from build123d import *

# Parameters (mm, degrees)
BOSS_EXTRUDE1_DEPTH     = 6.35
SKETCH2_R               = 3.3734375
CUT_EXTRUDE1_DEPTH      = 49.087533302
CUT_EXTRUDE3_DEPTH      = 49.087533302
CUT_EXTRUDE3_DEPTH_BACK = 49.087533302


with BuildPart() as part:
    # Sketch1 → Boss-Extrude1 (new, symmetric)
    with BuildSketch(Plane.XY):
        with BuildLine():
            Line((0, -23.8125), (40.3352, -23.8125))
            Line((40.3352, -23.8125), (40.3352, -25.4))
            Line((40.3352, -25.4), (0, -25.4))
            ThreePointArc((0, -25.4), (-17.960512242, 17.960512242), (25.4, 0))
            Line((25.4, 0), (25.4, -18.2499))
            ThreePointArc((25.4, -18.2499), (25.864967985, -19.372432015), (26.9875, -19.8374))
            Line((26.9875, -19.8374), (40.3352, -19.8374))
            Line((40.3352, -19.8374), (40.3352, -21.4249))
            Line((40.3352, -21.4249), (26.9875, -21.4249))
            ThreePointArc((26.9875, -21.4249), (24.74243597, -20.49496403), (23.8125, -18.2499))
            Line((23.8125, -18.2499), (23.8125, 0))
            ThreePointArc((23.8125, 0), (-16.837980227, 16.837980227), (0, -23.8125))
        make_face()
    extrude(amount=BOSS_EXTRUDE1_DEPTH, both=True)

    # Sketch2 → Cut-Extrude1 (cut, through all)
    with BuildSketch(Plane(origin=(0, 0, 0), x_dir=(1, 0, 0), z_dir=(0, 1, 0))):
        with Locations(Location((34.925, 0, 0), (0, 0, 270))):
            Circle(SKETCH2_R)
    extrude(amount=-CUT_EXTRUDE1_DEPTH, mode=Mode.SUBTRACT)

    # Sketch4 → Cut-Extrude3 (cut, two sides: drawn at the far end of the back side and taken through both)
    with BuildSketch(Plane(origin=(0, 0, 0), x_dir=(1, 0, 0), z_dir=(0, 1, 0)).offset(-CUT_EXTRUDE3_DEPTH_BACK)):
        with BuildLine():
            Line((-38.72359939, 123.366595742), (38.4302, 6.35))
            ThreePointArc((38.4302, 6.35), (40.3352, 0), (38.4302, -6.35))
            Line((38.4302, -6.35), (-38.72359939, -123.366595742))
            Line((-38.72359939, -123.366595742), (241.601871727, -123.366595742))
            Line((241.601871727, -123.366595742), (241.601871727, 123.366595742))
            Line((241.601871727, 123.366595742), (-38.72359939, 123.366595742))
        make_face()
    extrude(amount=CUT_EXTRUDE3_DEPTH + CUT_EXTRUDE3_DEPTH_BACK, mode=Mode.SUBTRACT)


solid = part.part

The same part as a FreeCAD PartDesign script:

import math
import FreeCAD as App
import Part
import Sketcher
Q = App.Units.Quantity

doc = App.newDocument("Part")
body = doc.addObject("PartDesign::Body", "Body")

sketch1 = body.newObject("Sketcher::SketchObject", "Sketch")
sketch1.AttachmentSupport = (doc.getObject("XY_Plane"), [""])
sketch1.MapMode = "FlatFace"
sketch1.addGeometry([
    Part.LineSegment(App.Vector(40.3, -23.8, 0), App.Vector(0, -23.8, 0)),
    Part.ArcOfCircle(Part.Circle(App.Vector(0, 0, 0), App.Vector(0, 0, 1), 23.8), math.radians(0), math.radians(270)),
    Part.LineSegment(App.Vector(23.8, 0, 0), App.Vector(23.8, -18.2, 0)),
    Part.ArcOfCircle(Part.Circle(App.Vector(27, -18.2, 0), App.Vector(0, 0, 1), 3.2), math.radians(-180), math.radians(-90)),
    Part.LineSegment(App.Vector(27, -21.4, 0), App.Vector(40.3, -21.4, 0)),
    Part.LineSegment(App.Vector(40.3, -21.4, 0), App.Vector(40.3, -19.8, 0)),
    Part.LineSegment(App.Vector(40.3, -19.8, 0), App.Vector(27, -19.8, 0)),
    Part.ArcOfCircle(Part.Circle(App.Vector(27, -18.2, 0), App.Vector(0, 0, 1), 1.6), math.radians(180), math.radians(270)),
    Part.LineSegment(App.Vector(25.4, -18.2, 0), App.Vector(25.4, 0, 0)),
    Part.ArcOfCircle(Part.Circle(App.Vector(0, 0, 0), App.Vector(0, 0, 1), 25.4), math.radians(0), math.radians(270)),
    Part.LineSegment(App.Vector(0, -25.4, 0), App.Vector(40.3, -25.4, 0)),
    Part.LineSegment(App.Vector(40.3, -25.4, 0), App.Vector(40.3, -23.8, 0)),
], False)
sketch1.addConstraint([
    Sketcher.Constraint("Tangent", 0, 2, 1, 2),
    Sketcher.Constraint("Tangent", 1, 1, 2, 1),
    Sketcher.Constraint("Tangent", 2, 2, 3, 1),
    Sketcher.Constraint("Tangent", 3, 2, 4, 1),
    Sketcher.Constraint("Coincident", 4, 2, 5, 1),
    Sketcher.Constraint("Coincident", 5, 2, 6, 1),
    Sketcher.Constraint("Tangent", 6, 2, 7, 2),
    Sketcher.Constraint("Tangent", 7, 1, 8, 1),
    Sketcher.Constraint("Tangent", 8, 2, 9, 1),
    Sketcher.Constraint("Tangent", 9, 2, 10, 1),
    Sketcher.Constraint("Coincident", 10, 2, 11, 1),
    Sketcher.Constraint("Coincident", 11, 2, 0, 1),
    Sketcher.Constraint("Horizontal", 0),
    Sketcher.Constraint("Vertical", 2),
    Sketcher.Constraint("Horizontal", 4),
    Sketcher.Constraint("Vertical", 5),
    Sketcher.Constraint("Horizontal", 6),
    Sketcher.Constraint("Vertical", 8),
    Sketcher.Constraint("Horizontal", 10),
    Sketcher.Constraint("Vertical", 11),
    Sketcher.Constraint("Coincident", 1, 3, -1, 1),
    Sketcher.Constraint("Coincident", 9, 3, -1, 1),
    Sketcher.Constraint("Coincident", 7, 3, 3, 3),
    Sketcher.Constraint("Vertical", 5, 2, 10, 2),
    Sketcher.Constraint("Radius", 9, Q("1 in")),
    Sketcher.Constraint("Radius", 1, Q("0.9375 in")),
    Sketcher.Constraint("Radius", 3, Q("0.125 in")),
    Sketcher.Constraint("DistanceX", 0, 2, 0, 1, Q("1.588 in")),
    Sketcher.Constraint("DistanceY", 2, 2, 2, 1, Q("0.7185 in")),
])
pad1 = body.newObject("PartDesign::Pad", "Pad")
pad1.Profile = sketch1
pad1.Length = Q("0.5 in")
pad1.Midplane = True

sketch2 = body.newObject("Sketcher::SketchObject", "Sketch001")
sketch2.AttachmentSupport = (doc.getObject("XZ_Plane"), [""])
sketch2.MapMode = "FlatFace"
sketch2.addGeometry(Part.Circle(App.Vector(34.9, 0, 0), App.Vector(0, 0, 1), 3.4), False)
sketch2.addConstraint([
    Sketcher.Constraint("PointOnObject", 0, 3, -1),
    Sketcher.Constraint("Diameter", 0, Q("0.265625 in")),
    Sketcher.Constraint("DistanceX", -1, 1, 0, 3, Q("1.375 in")),
])
pocket1 = body.newObject("PartDesign::Pocket", "Pocket")
pocket1.Profile = sketch2
pocket1.Type = "ThroughAll"
pocket1.Reversed = True

sketch3 = body.newObject("Sketcher::SketchObject", "Sketch002")
sketch3.AttachmentSupport = (doc.getObject("XZ_Plane"), [""])
sketch3.MapMode = "FlatFace"
sketch3.addGeometry([
    Part.LineSegment(App.Vector(-39, -123, 0), App.Vector(38, -6, 0)),
    Part.ArcOfCircle(Part.Circle(App.Vector(29, 0, 0), App.Vector(0, 0, 1), 12), math.radians(-33), math.radians(33)),
    Part.LineSegment(App.Vector(38, 6, 0), App.Vector(-39, 123, 0)),
    Part.LineSegment(App.Vector(-39, 123, 0), App.Vector(242, 123, 0)),
    Part.LineSegment(App.Vector(242, 123, 0), App.Vector(242, -123, 0)),
    Part.LineSegment(App.Vector(242, -123, 0), App.Vector(-39, -123, 0)),
], False)
sketch3.addConstraint([
    Sketcher.Constraint("Tangent", 0, 2, 1, 1),
    Sketcher.Constraint("Tangent", 1, 2, 2, 1),
    Sketcher.Constraint("Coincident", 2, 2, 3, 1),
    Sketcher.Constraint("Coincident", 3, 2, 4, 1),
    Sketcher.Constraint("Coincident", 4, 2, 5, 1),
    Sketcher.Constraint("Coincident", 5, 2, 0, 1),
    Sketcher.Constraint("Horizontal", 3),
    Sketcher.Constraint("Vertical", 4),
    Sketcher.Constraint("Horizontal", 5),
    Sketcher.Constraint("Symmetric", 0, 2, 1, 2, -1),
    Sketcher.Constraint("Vertical", 2, 2, 5, 2),
    Sketcher.Constraint("DistanceY", 0, 2, 1, 2, Q("0.5 in")),
    Sketcher.Constraint("DistanceX", -1, 1, 0, 2, Q("1.513 in")),
    Sketcher.Constraint("Radius", 1, 11.535833),
    Sketcher.Constraint("DistanceX", 3, 1, 3, 2, 280.325471),
    Sketcher.Constraint("DistanceY", 4, 2, 4, 1, 246.733191),
])
pocket2 = body.newObject("PartDesign::Pocket", "Pocket001")
pocket2.Profile = sketch3
pocket2.Type = "ThroughAll"
pocket2.Midplane = True

doc.recompute()
